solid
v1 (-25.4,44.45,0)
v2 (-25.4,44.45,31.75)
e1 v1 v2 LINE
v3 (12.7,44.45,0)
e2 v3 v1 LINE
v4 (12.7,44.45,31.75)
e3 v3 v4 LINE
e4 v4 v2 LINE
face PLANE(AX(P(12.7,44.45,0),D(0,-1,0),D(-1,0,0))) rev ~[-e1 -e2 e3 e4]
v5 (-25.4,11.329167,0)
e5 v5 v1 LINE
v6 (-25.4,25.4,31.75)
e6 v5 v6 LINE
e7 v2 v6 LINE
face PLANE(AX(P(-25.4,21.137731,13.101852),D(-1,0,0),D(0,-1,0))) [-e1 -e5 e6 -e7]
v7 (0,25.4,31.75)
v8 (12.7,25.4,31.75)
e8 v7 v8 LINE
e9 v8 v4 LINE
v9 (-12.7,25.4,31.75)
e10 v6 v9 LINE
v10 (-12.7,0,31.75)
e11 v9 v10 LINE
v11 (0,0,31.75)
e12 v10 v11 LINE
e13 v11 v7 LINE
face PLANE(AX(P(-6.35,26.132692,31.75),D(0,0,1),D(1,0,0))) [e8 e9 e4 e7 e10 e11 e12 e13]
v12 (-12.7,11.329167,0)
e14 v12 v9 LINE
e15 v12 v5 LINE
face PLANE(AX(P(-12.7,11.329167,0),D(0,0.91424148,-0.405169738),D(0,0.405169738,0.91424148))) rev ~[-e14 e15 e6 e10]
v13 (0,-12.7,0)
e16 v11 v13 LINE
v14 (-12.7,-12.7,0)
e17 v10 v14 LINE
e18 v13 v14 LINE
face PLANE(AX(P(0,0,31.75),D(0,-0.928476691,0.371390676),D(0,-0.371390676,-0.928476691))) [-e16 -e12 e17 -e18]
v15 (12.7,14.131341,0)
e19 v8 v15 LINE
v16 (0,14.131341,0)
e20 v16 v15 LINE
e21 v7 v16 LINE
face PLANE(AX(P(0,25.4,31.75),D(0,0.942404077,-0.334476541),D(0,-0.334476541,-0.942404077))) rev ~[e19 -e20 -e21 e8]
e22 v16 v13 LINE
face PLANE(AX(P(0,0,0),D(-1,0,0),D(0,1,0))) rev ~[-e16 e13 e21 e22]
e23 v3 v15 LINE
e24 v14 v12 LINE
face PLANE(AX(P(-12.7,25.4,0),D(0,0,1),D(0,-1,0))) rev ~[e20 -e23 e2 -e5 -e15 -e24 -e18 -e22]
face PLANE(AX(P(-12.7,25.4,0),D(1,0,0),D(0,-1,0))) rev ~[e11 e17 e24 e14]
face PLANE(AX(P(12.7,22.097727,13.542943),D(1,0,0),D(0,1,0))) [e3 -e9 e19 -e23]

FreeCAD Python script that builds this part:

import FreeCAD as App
import Part
import Sketcher
Q = App.Units.Quantity


def add_polygon(sketch, points):
    """Adds a closed chain of lines whose ends are joined by coincident constraints."""
    first, n = sketch.GeometryCount, len(points)
    for a, b in zip(points, points[1:] + points[:1]):
        sketch.addGeometry(Part.LineSegment(App.Vector(*a, 0), App.Vector(*b, 0)), False)
    for i in range(n):
        sketch.addConstraint(Sketcher.Constraint("Coincident", first + i, 2, first + (i + 1) % n, 1))

doc = App.newDocument("Part")
params = doc.addObject("Spreadsheet::Sheet", "Params")
for row, (alias, value) in enumerate([
    ("sketch1_height", "1 in"),
    ("sketch1_width", "0.5 in"),
    ("sketch1_height2", "0.75 in"),
    ("pad1_length", "1.25 in"),
    ("sketch2_height", "1.25 in"),
    ("pad2_length", "0.5 in"),
    ("sketch3_height", "1.25 in"),
    ("pad3_length", "0.5 in"),
    ("sketch4_width", "1 in"),
    ("pad4_length", "0.5 in"),
], start=1):
    params.set(f"A{row}", alias)
    params.set(f"B{row}", "=" + value)
    params.setAlias(f"B{row}", alias)

body = doc.addObject("PartDesign::Body", "Body")

# Sketch on XY plane
sketch1 = body.newObject("Sketcher::SketchObject", "Sketch")
sketch1.AttachmentSupport = (doc.getObject("XY_Plane"), [""])
sketch1.MapMode = "FlatFace"
add_polygon(sketch1, [(-13, 0), (0, 0), (0, 25), (13, 25), (13, 44), (-25, 44), (-25, 25), (-13, 25)])  # lines 0-7
sketch1.addConstraint([
    Sketcher.Constraint("Horizontal", 0),
    Sketcher.Constraint("Vertical", 1),
    Sketcher.Constraint("Horizontal", 2),
    Sketcher.Constraint("Vertical", 3),
    Sketcher.Constraint("Horizontal", 4),
    Sketcher.Constraint("Vertical", 5),
    Sketcher.Constraint("Horizontal", 6),
    Sketcher.Constraint("Vertical", 7),
    Sketcher.Constraint("Coincident", 0, 2, -1, 1),
    Sketcher.Constraint("Symmetric", 2, 2, 6, 2, -2),
    Sketcher.Constraint("Equal", 2, 6),
    Sketcher.Constraint("DistanceY", 1, 1, 1, 2, Q("1 in")),
    Sketcher.Constraint("DistanceX", 0, 1, 0, 2, Q("0.5 in")),
    Sketcher.Constraint("DistanceY", 3, 1, 3, 2, Q("0.75 in")),
])
sketch1.setExpression("Constraints[19]", "Params.sketch1_height")
sketch1.setExpression("Constraints[20]", "Params.sketch1_width")
sketch1.setExpression("Constraints[21]", "Params.sketch1_height2")
pad1 = body.newObject("PartDesign::Pad", "Pad")
pad1.Profile = sketch1
pad1.setExpression("Length", "Params.pad1_length")

# Sketch on YZ plane
sketch2 = body.newObject("Sketcher::SketchObject", "Sketch001")
sketch2.AttachmentSupport = (doc.getObject("YZ_Plane"), [""])
sketch2.MapMode = "FlatFace"
add_polygon(sketch2, [(25, 32), (14, 0), (25, 0)])  # lines 0-2
sketch2.addConstraint([
    Sketcher.Constraint("Horizontal", 1),
    Sketcher.Constraint("Vertical", 2),
    Sketcher.Constraint("PointOnObject", 0, 2, -1),
    Sketcher.Constraint("DistanceX", -1, 1, 1, 2, Q("1 in")),
    Sketcher.Constraint("DistanceY", 2, 1, 2, 2, Q("1.25 in")),
    Sketcher.Constraint("DistanceX", 1, 1, 1, 2, 11.268659),
])
sketch2.setExpression("Constraints[7]", "Params.sketch2_height")
pad2 = body.newObject("PartDesign::Pad", "Pad001")
pad2.Profile = sketch2
pad2.setExpression("Length", "Params.pad2_length")

# Sketch on YZ plane
sketch3 = body.newObject("Sketcher::SketchObject", "Sketch002")
sketch3.AttachmentSupport = (doc.getObject("YZ_Plane"), [""])
sketch3.MapMode = "FlatFace"
sketch3.AttachmentOffset = App.Placement(App.Vector(0, 0, -0.5 * 25.4), App.Rotation())
add_polygon(sketch3, [(25, 0), (11, 0), (25, 32)])  # lines 0-2
sketch3.addConstraint([
    Sketcher.Constraint("Horizontal", 0),
    Sketcher.Constraint("Vertical", 2),
    Sketcher.Constraint("PointOnObject", 0, 2, -1),
    Sketcher.Constraint("DistanceX", -1, 1, 1, 2, Q("1 in")),
    Sketcher.Constraint("DistanceY", 2, 2, 2, 1, Q("1.25 in")),
    Sketcher.Constraint("DistanceX", 0, 2, 0, 1, 14.070833),
])
sketch3.setExpression("Constraints[7]", "Params.sketch3_height")
pad3 = body.newObject("PartDesign::Pad", "Pad002")
pad3.Profile = sketch3
pad3.setExpression("Length", "Params.pad3_length")
pad3.Reversed = True

# Sketch on YZ plane
sketch4 = body.newObject("Sketcher::SketchObject", "Sketch003")
sketch4.AttachmentSupport = (doc.getObject("YZ_Plane"), [""])
sketch4.MapMode = "FlatFace"
add_polygon(sketch4, [(14, 0), (25, 32), (0, 32), (-13, 0)])  # lines 0-3
sketch4.addConstraint([
    Sketcher.Constraint("Horizontal", 1),
    Sketcher.Constraint("Horizontal", 3),
    Sketcher.Constraint("PointOnObject", 1, 2, -2),
    Sketcher.Constraint("PointOnObject", 2, 2, -1),
    Sketcher.Constraint("DistanceX", 1, 2, 1, 1, Q("1 in")),
    Sketcher.Constraint("DistanceX", 2, 2, -1, 1, Q("0.5 in")),
    Sketcher.Constraint("DistanceY", -1, 1, 0, 2, Q("1.25 in")),
    Sketcher.Constraint("DistanceX", 3, 1, 3, 2, 26.831341),
])
sketch4.setExpression("Constraints[8]", "Params.sketch4_width")
pad4 = body.newObject("PartDesign::Pad", "Pad003")
pad4.Profile = sketch4
pad4.setExpression("Length", "Params.pad4_length")
pad4.Reversed = True

doc.recompute()
